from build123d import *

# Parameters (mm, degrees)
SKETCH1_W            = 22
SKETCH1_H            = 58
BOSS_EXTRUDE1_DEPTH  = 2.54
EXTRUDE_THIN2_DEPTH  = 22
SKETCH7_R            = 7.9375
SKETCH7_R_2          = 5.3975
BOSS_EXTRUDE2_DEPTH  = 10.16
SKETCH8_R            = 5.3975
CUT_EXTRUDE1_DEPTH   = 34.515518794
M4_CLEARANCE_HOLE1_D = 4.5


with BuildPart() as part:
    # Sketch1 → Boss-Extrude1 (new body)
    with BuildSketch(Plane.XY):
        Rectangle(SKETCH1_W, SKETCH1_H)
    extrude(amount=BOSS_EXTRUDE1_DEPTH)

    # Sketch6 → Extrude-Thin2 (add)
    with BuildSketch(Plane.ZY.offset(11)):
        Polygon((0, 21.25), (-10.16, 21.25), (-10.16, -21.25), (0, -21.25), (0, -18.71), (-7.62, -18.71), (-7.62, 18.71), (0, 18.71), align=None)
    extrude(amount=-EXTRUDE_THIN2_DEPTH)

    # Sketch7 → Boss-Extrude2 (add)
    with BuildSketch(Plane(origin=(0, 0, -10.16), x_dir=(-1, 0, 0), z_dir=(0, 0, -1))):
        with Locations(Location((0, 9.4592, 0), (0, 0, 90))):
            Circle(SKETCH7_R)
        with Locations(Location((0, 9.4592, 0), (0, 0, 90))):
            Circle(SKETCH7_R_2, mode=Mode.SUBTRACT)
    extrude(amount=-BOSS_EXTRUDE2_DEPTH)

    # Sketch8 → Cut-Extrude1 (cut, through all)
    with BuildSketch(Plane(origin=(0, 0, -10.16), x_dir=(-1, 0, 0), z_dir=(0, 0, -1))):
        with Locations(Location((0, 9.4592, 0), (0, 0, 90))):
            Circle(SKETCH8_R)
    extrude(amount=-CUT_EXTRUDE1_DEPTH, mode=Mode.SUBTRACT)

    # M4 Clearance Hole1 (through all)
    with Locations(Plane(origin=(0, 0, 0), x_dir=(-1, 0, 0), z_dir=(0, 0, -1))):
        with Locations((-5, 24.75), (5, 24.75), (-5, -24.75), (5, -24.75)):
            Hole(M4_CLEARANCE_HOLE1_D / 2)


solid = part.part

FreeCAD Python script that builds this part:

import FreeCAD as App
import Part
import Sketcher

V = App.Vector
Q = App.Units.Quantity


def add_polygon(sketch, points):
    """Adds a closed chain of lines whose ends are joined by coincident constraints."""
    first, n = sketch.GeometryCount, len(points)
    for a, b in zip(points, points[1:] + points[:1]):
        sketch.addGeometry(Part.LineSegment(App.Vector(*a, 0), App.Vector(*b, 0)), False)
    for i in range(n):
        sketch.addConstraint(Sketcher.Constraint("Coincident", first + i, 2, first + (i + 1) % n, 1))

doc = App.newDocument("Part")
params = doc.addObject("Spreadsheet::Sheet", "Params")
for row, (alias, value) in enumerate([
    ("pad1_length", "0.1 in"),
    ("sketch2_width", "0.1 in"),
    ("sketch2_height", "0.4 in"),
    ("sketch2_height2", "0.3 in"),
    ("pad2_length", "22 mm"),
    ("sketch3_diameter", "0.625 in"),
    ("sketch3_diameter2", "0.425 in"),
    ("pad3_length", "0.4 in"),
    ("sketch4_diameter", "0.425 in"),
    ("hole_diameter", "4.5 mm"),
], start=1):
    params.set(f"A{row}", alias)
    params.set(f"B{row}", "=" + value)
    params.setAlias(f"B{row}", alias)

body = doc.addObject("PartDesign::Body", "Body")

sketch1 = body.newObject("Sketcher::SketchObject", "Sketch")
sketch1.AttachmentSupport = (doc.getObject("XY_Plane"), [""])
sketch1.MapMode = "FlatFace"
add_polygon(sketch1, [(-11, 29), (-11, -29), (11, -29), (11, 29)])
sketch1.addConstraint(Sketcher.Constraint("Vertical", 0))
sketch1.addConstraint(Sketcher.Constraint("Horizontal", 1))
sketch1.addConstraint(Sketcher.Constraint("Vertical", 2))
sketch1.addConstraint(Sketcher.Constraint("Horizontal", 3))
sketch1.addConstraint(Sketcher.Constraint("Symmetric", 0, 2, 2, 2, -1, 1))
sketch1.addConstraint(Sketcher.Constraint("DistanceX", 1, 1, 1, 2, Q("22 mm")))
sketch1.addConstraint(Sketcher.Constraint("DistanceY", 0, 2, 0, 1, Q("58 mm")))
pad1 = body.newObject("PartDesign::Pad", "Pad")
pad1.Profile = sketch1
pad1.setExpression("Length", "Params.pad1_length")

sketch2 = body.newObject("Sketcher::SketchObject", "Sketch001")
sketch2.AttachmentSupport = (doc.getObject("YZ_Plane"), [""])
sketch2.MapMode = "FlatFace"
sketch2.AttachmentOffset = App.Placement(V(0, 0, -11), App.Rotation())
add_polygon(sketch2, [(21.2, 0), (21.2, -10.2), (-21.2, -10.2), (-21.2, 0), (-18.7, 0), (-18.7, -7.6), (18.7, -7.6), (18.7, 0)])
sketch2.addConstraint(Sketcher.Constraint("Vertical", 0))
sketch2.addConstraint(Sketcher.Constraint("Horizontal", 1))
sketch2.addConstraint(Sketcher.Constraint("Vertical", 2))
sketch2.addConstraint(Sketcher.Constraint("Horizontal", 3))
sketch2.addConstraint(Sketcher.Constraint("Vertical", 4))
sketch2.addConstraint(Sketcher.Constraint("Horizontal", 5))
sketch2.addConstraint(Sketcher.Constraint("Vertical", 6))
sketch2.addConstraint(Sketcher.Constraint("Horizontal", 7))
sketch2.addConstraint(Sketcher.Constraint("Symmetric", 3, 2, 6, 2, -1, 1))
sketch2.addConstraint(Sketcher.Constraint("Symmetric", 2, 2, 7, 2, -2))
sketch2.addConstraint(Sketcher.Constraint("DistanceX", 3, 1, 3, 2, Q("0.1 in")))
sketch2.addConstraint(Sketcher.Constraint("DistanceY", 0, 2, 0, 1, Q("0.4 in")))
sketch2.addConstraint(Sketcher.Constraint("DistanceY", 4, 2, 4, 1, Q("0.3 in")))
sketch2.addConstraint(Sketcher.Constraint("DistanceX", 1, 2, 1, 1, Q("42.5 mm")))
sketch2.setExpression("Constraints[18]", "Params.sketch2_width")
sketch2.setExpression("Constraints[19]", "Params.sketch2_height")
sketch2.setExpression("Constraints[20]", "Params.sketch2_height2")
pad2 = body.newObject("PartDesign::Pad", "Pad001")
pad2.Profile = sketch2
pad2.setExpression("Length", "Params.pad2_length")

sketch3 = body.newObject("Sketcher::SketchObject", "Sketch002")
sketch3.AttachmentSupport = (doc.getObject("XY_Plane"), [""])
sketch3.MapMode = "FlatFace"
sketch3.AttachmentOffset = App.Placement(V(0, 0, -0.4 * 25.4), App.Rotation())
sketch3.addGeometry(Part.Circle(V(0, 9, 0), V(0, 0, 1), 8), False)
sketch3.addGeometry(Part.Circle(V(0, 9, 0), V(0, 0, 1), 5), False)
sketch3.addConstraint(Sketcher.Constraint("Coincident", 1, 3, 0, 3))
sketch3.addConstraint(Sketcher.Constraint("PointOnObject", 0, 3, -2))
sketch3.addConstraint(Sketcher.Constraint("Diameter", 0, Q("0.625 in")))
sketch3.addConstraint(Sketcher.Constraint("Diameter", 1, Q("0.425 in")))
sketch3.addConstraint(Sketcher.Constraint("DistanceY", -1, 1, 0, 3, Q("9.4592 mm")))
sketch3.setExpression("Constraints[2]", "Params.sketch3_diameter")
sketch3.setExpression("Constraints[3]", "Params.sketch3_diameter2")
pad3 = body.newObject("PartDesign::Pad", "Pad002")
pad3.Profile = sketch3
pad3.setExpression("Length", "Params.pad3_length")

sketch4 = body.newObject("Sketcher::SketchObject", "Sketch003")
sketch4.AttachmentSupport = (doc.getObject("XY_Plane"), [""])
sketch4.MapMode = "FlatFace"
sketch4.AttachmentOffset = App.Placement(V(0, 0, -0.4 * 25.4), App.Rotation())
sketch4.addGeometry(Part.Circle(V(0, 9, 0), V(0, 0, 1), 5), False)
sketch4.addConstraint(Sketcher.Constraint("PointOnObject", 0, 3, -2))
sketch4.addConstraint(Sketcher.Constraint("Diameter", 0, Q("0.425 in")))
sketch4.addConstraint(Sketcher.Constraint("DistanceY", -1, 1, 0, 3, Q("9.4592 mm")))
sketch4.setExpression("Constraints[1]", "Params.sketch4_diameter")
pocket1 = body.newObject("PartDesign::Pocket", "Pocket")
pocket1.Profile = sketch4
pocket1.Type = "ThroughAll"
pocket1.Reversed = True

sketch5 = body.newObject("Sketcher::SketchObject", "Sketch004")
sketch5.AttachmentSupport = (doc.getObject("XY_Plane"), [""])
sketch5.MapMode = "FlatFace"
sketch5.addGeometry(Part.Circle(V(5, 24.8, 0), V(0, 0, 1), 2.2), False)
sketch5.addGeometry(Part.Circle(V(-5, 24.8, 0), V(0, 0, 1), 2.2), False)
sketch5.addGeometry(Part.Circle(V(5, -24.8, 0), V(0, 0, 1), 2.2), False)
sketch5.addGeometry(Part.Circle(V(-5, -24.8, 0), V(0, 0, 1), 2.2), False)
sketch5.addConstraint(Sketcher.Constraint("Equal", 0, 1))
sketch5.addConstraint(Sketcher.Constraint("Equal", 1, 2))
sketch5.addConstraint(Sketcher.Constraint("Equal", 2, 3))
sketch5.addConstraint(Sketcher.Constraint("Symmetric", 1, 3, 2, 3, -1, 1))
sketch5.addConstraint(Sketcher.Constraint("Symmetric", 0, 3, 3, 3, -1, 1))
sketch5.addConstraint(Sketcher.Constraint("Symmetric", 0, 3, 1, 3, -2))
sketch5.addConstraint(Sketcher.Constraint("Diameter", 0, Q("4.5 mm")))
sketch5.addConstraint(Sketcher.Constraint("DistanceX", -1, 1, 0, 3, Q("5 mm")))
sketch5.addConstraint(Sketcher.Constraint("DistanceY", -1, 1, 0, 3, Q("24.75 mm")))
doc.recompute()
hole = body.newObject("PartDesign::Hole", "Hole")
hole.Profile = sketch5
hole.ThreadType = "None"
hole.setExpression("Diameter", "Params.hole_diameter")
hole.DepthType = "ThroughAll"
hole.Reversed = True

doc.recompute()
